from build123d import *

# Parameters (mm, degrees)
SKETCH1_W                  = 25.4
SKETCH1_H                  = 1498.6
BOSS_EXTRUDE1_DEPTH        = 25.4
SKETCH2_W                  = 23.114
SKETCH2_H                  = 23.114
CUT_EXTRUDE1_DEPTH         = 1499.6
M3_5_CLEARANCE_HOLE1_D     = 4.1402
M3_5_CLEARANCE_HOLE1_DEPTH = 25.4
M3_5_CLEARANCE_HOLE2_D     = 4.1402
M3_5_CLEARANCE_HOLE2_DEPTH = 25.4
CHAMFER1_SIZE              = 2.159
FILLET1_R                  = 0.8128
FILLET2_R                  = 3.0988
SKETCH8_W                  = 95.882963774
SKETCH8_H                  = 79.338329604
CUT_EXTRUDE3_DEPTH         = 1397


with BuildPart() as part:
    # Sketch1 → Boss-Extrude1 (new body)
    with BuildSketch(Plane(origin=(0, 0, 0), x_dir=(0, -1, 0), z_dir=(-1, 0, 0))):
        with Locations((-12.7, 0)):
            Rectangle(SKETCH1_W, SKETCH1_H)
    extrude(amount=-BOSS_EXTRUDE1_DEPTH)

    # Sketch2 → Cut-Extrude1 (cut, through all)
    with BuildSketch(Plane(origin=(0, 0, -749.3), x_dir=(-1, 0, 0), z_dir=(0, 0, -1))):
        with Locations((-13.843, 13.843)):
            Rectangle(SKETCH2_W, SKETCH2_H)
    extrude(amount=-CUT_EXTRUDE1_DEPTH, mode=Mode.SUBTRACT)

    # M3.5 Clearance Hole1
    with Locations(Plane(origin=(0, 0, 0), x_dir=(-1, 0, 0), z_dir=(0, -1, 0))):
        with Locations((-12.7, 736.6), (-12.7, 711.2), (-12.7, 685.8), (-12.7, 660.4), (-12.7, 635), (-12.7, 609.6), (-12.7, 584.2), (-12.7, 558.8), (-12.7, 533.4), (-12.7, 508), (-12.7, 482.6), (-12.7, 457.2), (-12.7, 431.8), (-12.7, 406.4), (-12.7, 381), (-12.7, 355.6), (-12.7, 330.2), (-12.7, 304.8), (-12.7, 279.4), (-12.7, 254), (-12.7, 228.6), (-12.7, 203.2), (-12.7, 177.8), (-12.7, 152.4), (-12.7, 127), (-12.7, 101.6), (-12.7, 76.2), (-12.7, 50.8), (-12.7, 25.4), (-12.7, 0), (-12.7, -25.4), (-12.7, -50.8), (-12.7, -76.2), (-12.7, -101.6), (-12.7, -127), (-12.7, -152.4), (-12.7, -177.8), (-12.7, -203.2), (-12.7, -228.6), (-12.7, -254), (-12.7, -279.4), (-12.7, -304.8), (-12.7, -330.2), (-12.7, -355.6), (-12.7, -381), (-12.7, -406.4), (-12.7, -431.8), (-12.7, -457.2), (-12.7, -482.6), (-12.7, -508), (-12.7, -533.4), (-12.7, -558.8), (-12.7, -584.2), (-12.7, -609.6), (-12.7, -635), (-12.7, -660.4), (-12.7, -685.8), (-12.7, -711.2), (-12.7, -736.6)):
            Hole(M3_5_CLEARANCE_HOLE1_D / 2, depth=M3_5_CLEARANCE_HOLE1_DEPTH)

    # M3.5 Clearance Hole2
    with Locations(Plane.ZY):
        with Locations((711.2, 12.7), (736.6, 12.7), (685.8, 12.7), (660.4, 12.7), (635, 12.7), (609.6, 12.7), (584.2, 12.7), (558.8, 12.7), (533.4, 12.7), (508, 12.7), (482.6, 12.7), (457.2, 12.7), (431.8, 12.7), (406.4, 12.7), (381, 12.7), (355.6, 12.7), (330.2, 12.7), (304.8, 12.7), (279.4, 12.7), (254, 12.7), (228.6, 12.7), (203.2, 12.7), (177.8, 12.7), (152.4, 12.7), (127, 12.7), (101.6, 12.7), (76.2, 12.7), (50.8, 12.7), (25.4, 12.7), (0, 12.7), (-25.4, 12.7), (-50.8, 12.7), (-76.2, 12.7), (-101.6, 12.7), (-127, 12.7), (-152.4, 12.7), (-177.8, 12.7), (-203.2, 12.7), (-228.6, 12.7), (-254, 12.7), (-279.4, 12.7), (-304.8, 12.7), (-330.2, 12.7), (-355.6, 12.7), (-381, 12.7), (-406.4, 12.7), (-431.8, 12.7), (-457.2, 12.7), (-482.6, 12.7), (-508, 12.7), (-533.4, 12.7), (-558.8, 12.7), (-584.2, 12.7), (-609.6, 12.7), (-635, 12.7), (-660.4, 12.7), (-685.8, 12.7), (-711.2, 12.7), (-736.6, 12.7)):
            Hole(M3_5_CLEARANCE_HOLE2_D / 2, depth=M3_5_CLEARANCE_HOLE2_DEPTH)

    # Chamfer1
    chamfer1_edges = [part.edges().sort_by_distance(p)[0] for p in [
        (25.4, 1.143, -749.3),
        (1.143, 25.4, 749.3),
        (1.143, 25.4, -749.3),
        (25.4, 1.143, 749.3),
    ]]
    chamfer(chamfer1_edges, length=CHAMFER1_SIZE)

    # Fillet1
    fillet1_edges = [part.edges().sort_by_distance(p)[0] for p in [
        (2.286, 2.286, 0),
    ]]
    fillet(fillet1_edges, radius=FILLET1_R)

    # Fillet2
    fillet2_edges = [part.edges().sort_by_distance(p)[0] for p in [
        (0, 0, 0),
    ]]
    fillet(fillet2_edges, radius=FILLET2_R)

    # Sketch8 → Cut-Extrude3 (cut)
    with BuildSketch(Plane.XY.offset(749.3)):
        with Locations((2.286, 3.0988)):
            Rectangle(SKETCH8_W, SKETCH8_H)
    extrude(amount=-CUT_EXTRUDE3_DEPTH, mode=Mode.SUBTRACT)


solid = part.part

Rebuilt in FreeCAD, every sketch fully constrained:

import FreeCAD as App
import Part
import Sketcher

V = App.Vector
Q = App.Units.Quantity


def edges_at(feature, points):
    """Names of the edges that pass closest to the given points."""
    edges = feature.Shape.Edges
    near = lambda p: min(range(len(edges)), key=lambda i: edges[i].distToShape(Part.Vertex(*p))[0])
    return sorted({f"Edge{near(p) + 1}" for p in points})

doc = App.newDocument("Part")
body = doc.addObject("PartDesign::Body", "Body")

sketch1 = doc.addObject("Sketcher::SketchObject", "Sketch")
body.addObject(sketch1)
sketch1.AttachmentSupport = (doc.YZ_Plane, [""])
sketch1.MapMode = "FlatFace"
sketch1.addGeometry([
    Part.LineSegment(V(25, 749, 0), V(25, -749, 0)),
    Part.LineSegment(V(25, -749, 0), V(0, -749, 0)),
    Part.LineSegment(V(0, -749, 0), V(0, 749, 0)),
    Part.LineSegment(V(0, 749, 0), V(25, 749, 0)),
], False)
sketch1.addConstraint([
    Sketcher.Constraint("Coincident", 0, 2, 1, 1),
    Sketcher.Constraint("Coincident", 1, 2, 2, 1),
    Sketcher.Constraint("Coincident", 2, 2, 3, 1),
    Sketcher.Constraint("Coincident", 3, 2, 0, 1),
    Sketcher.Constraint("Vertical", 0),
    Sketcher.Constraint("Horizontal", 1),
    Sketcher.Constraint("Vertical", 2),
    Sketcher.Constraint("Horizontal", 3),
    Sketcher.Constraint("Symmetric", 1, 2, 2, 2, -1, 1),
    Sketcher.Constraint("DistanceX", 1, 2, 1, 1, Q("1 in")),
    Sketcher.Constraint("DistanceY", 0, 2, 0, 1, Q("59 in")),
])
pad1 = doc.addObject("PartDesign::Pad", "Pad")
body.addObject(pad1)
pad1.Profile = sketch1
pad1.Length = Q("1 in")

sketch2 = doc.addObject("Sketcher::SketchObject", "Sketch001")
body.addObject(sketch2)
sketch2.AttachmentSupport = (doc.XY_Plane, [""])
sketch2.MapMode = "FlatFace"
sketch2.AttachmentOffset = App.Placement(V(0, 0, -29.5 * 25.4), App.Rotation())
sketch2.addGeometry([
    Part.LineSegment(V(25, 25, 0), V(25, 2, 0)),
    Part.LineSegment(V(25, 2, 0), V(2, 2, 0)),
    Part.LineSegment(V(2, 2, 0), V(2, 25, 0)),
    Part.LineSegment(V(2, 25, 0), V(25, 25, 0)),
], False)
sketch2.addConstraint([
    Sketcher.Constraint("Coincident", 0, 2, 1, 1),
    Sketcher.Constraint("Coincident", 1, 2, 2, 1),
    Sketcher.Constraint("Coincident", 2, 2, 3, 1),
    Sketcher.Constraint("Coincident", 3, 2, 0, 1),
    Sketcher.Constraint("Vertical", 0),
    Sketcher.Constraint("Horizontal", 1),
    Sketcher.Constraint("Vertical", 2),
    Sketcher.Constraint("Horizontal", 3),
    Sketcher.Constraint("Equal", 3, 0),
    Sketcher.Constraint("DistanceX", -1, 1, 0, 2, Q("1 in")),
    Sketcher.Constraint("DistanceY", -1, 1, 2, 2, Q("1 in")),
    Sketcher.Constraint("DistanceX", 1, 2, 1, 1, Q("0.91 in")),
])
pocket1 = doc.addObject("PartDesign::Pocket", "Pocket")
body.addObject(pocket1)
pocket1.Profile = sketch2
pocket1.Type = "ThroughAll"
pocket1.Reversed = True

sketch3 = doc.addObject("Sketcher::SketchObject", "Sketch002")
body.addObject(sketch3)
sketch3.AttachmentSupport = (doc.XZ_Plane, [""])
sketch3.MapMode = "FlatFace"
sketch3.addGeometry([
    Part.Circle(V(12.7, -736.6, 0), V(0, 0, 1), 2.1),
    Part.Circle(V(12.7, -711.2, 0), V(0, 0, 1), 2.1),
    Part.Circle(V(12.7, -685.8, 0), V(0, 0, 1), 2.1),
    Part.Circle(V(12.7, -660.4, 0), V(0, 0, 1), 2.1),
    Part.Circle(V(12.7, -635, 0), V(0, 0, 1), 2.1),
    Part.Circle(V(12.7, -609.6, 0), V(0, 0, 1), 2.1),
    Part.Circle(V(12.7, -584.2, 0), V(0, 0, 1), 2.1),
    Part.Circle(V(12.7, -558.8, 0), V(0, 0, 1), 2.1),
    Part.Circle(V(12.7, -533.4, 0), V(0, 0, 1), 2.1),
    Part.Circle(V(12.7, -508, 0), V(0, 0, 1), 2.1),
    Part.Circle(V(12.7, -482.6, 0), V(0, 0, 1), 2.1),
    Part.Circle(V(12.7, -457.2, 0), V(0, 0, 1), 2.1),
    Part.Circle(V(12.7, -431.8, 0), V(0, 0, 1), 2.1),
    Part.Circle(V(12.7, -406.4, 0), V(0, 0, 1), 2.1),
    Part.Circle(V(12.7, -381, 0), V(0, 0, 1), 2.1),
    Part.Circle(V(12.7, -355.6, 0), V(0, 0, 1), 2.1),
    Part.Circle(V(12.7, -330.2, 0), V(0, 0, 1), 2.1),
    Part.Circle(V(12.7, -304.8, 0), V(0, 0, 1), 2.1),
    Part.Circle(V(12.7, -279.4, 0), V(0, 0, 1), 2.1),
    Part.Circle(V(12.7, -254, 0), V(0, 0, 1), 2.1),
    Part.Circle(V(12.7, -228.6, 0), V(0, 0, 1), 2.1),
    Part.Circle(V(12.7, -203.2, 0), V(0, 0, 1), 2.1),
    Part.Circle(V(12.7, -177.8, 0), V(0, 0, 1), 2.1),
    Part.Circle(V(12.7, -152.4, 0), V(0, 0, 1), 2.1),
    Part.Circle(V(12.7, -127, 0), V(0, 0, 1), 2.1),
    Part.Circle(V(12.7, -101.6, 0), V(0, 0, 1), 2.1),
    Part.Circle(V(12.7, -76.2, 0), V(0, 0, 1), 2.1),
    Part.Circle(V(12.7, -50.8, 0), V(0, 0, 1), 2.1),
    Part.Circle(V(12.7, -25.4, 0), V(0, 0, 1), 2.1),
    Part.Circle(V(12.7, 0, 0), V(0, 0, 1), 2.1),
    Part.Circle(V(12.7, 25.4, 0), V(0, 0, 1), 2.1),
    Part.Circle(V(12.7, 50.8, 0), V(0, 0, 1), 2.1),
    Part.Circle(V(12.7, 76.2, 0), V(0, 0, 1), 2.1),
    Part.Circle(V(12.7, 101.6, 0), V(0, 0, 1), 2.1),
    Part.Circle(V(12.7, 127, 0), V(0, 0, 1), 2.1),
    Part.Circle(V(12.7, 152.4, 0), V(0, 0, 1), 2.1),
    Part.Circle(V(12.7, 177.8, 0), V(0, 0, 1), 2.1),
    Part.Circle(V(12.7, 203.2, 0), V(0, 0, 1), 2.1),
    Part.Circle(V(12.7, 228.6, 0), V(0, 0, 1), 2.1),
    Part.Circle(V(12.7, 254, 0), V(0, 0, 1), 2.1),
    Part.Circle(V(12.7, 279.4, 0), V(0, 0, 1), 2.1),
    Part.Circle(V(12.7, 304.8, 0), V(0, 0, 1), 2.1),
    Part.Circle(V(12.7, 330.2, 0), V(0, 0, 1), 2.1),
    Part.Circle(V(12.7, 355.6, 0), V(0, 0, 1), 2.1),
    Part.Circle(V(12.7, 381, 0), V(0, 0, 1), 2.1),
    Part.Circle(V(12.7, 406.4, 0), V(0, 0, 1), 2.1),
    Part.Circle(V(12.7, 431.8, 0), V(0, 0, 1), 2.1),
    Part.Circle(V(12.7, 457.2, 0), V(0, 0, 1), 2.1),
    Part.Circle(V(12.7, 482.6, 0), V(0, 0, 1), 2.1),
    Part.Circle(V(12.7, 508, 0), V(0, 0, 1), 2.1),
    Part.Circle(V(12.7, 533.4, 0), V(0, 0, 1), 2.1),
    Part.Circle(V(12.7, 558.8, 0), V(0, 0, 1), 2.1),
    Part.Circle(V(12.7, 584.2, 0), V(0, 0, 1), 2.1),
    Part.Circle(V(12.7, 609.6, 0), V(0, 0, 1), 2.1),
    Part.Circle(V(12.7, 635, 0), V(0, 0, 1), 2.1),
    Part.Circle(V(12.7, 660.4, 0), V(0, 0, 1), 2.1),
    Part.Circle(V(12.7, 685.8, 0), V(0, 0, 1), 2.1),
    Part.Circle(V(12.7, 711.2, 0), V(0, 0, 1), 2.1),
    Part.Circle(V(12.7, 736.6, 0), V(0, 0, 1), 2.1),
], False)
sketch3.addConstraint([
    Sketcher.Constraint("Equal", 0, 1),
    Sketcher.Constraint("Equal", 1, 2),
    Sketcher.Constraint("Equal", 2, 3),
    Sketcher.Constraint("Equal", 3, 4),
    Sketcher.Constraint("Equal", 4, 5),
    Sketcher.Constraint("Equal", 5, 6),
    Sketcher.Constraint("Equal", 6, 7),
    Sketcher.Constraint("Equal", 7, 8),
    Sketcher.Constraint("Equal", 8, 9),
    Sketcher.Constraint("Equal", 9, 10),
    Sketcher.Constraint("Equal", 10, 11),
    Sketcher.Constraint("Equal", 11, 12),
    Sketcher.Constraint("Equal", 12, 13),
    Sketcher.Constraint("Equal", 13, 14),
    Sketcher.Constraint("Equal", 14, 15),
    Sketcher.Constraint("Equal", 15, 16),
    Sketcher.Constraint("Equal", 16, 17),
    Sketcher.Constraint("Equal", 17, 18),
    Sketcher.Constraint("Equal", 18, 19),
    Sketcher.Constraint("Equal", 19, 20),
    Sketcher.Constraint("Equal", 20, 21),
    Sketcher.Constraint("Equal", 21, 22),
    Sketcher.Constraint("Equal", 22, 23),
    Sketcher.Constraint("Equal", 23, 24),
    Sketcher.Constraint("Equal", 24, 25),
    Sketcher.Constraint("Equal", 25, 26),
    Sketcher.Constraint("Equal", 26, 27),
    Sketcher.Constraint("Equal", 27, 28),
    Sketcher.Constraint("Equal", 28, 29),
    Sketcher.Constraint("Equal", 29, 30),
    Sketcher.Constraint("Equal", 30, 31),
    Sketcher.Constraint("Equal", 31, 32),
    Sketcher.Constraint("Equal", 32, 33),
    Sketcher.Constraint("Equal", 33, 34),
    Sketcher.Constraint("Equal", 34, 35),
    Sketcher.Constraint("Equal", 35, 36),
    Sketcher.Constraint("Equal", 36, 37),
    Sketcher.Constraint("Equal", 37, 38),
    Sketcher.Constraint("Equal", 38, 39),
    Sketcher.Constraint("Equal", 39, 40),
    Sketcher.Constraint("Equal", 40, 41),
    Sketcher.Constraint("Equal", 41, 42),
    Sketcher.Constraint("Equal", 42, 43),
    Sketcher.Constraint("Equal", 43, 44),
    Sketcher.Constraint("Equal", 44, 45),
    Sketcher.Constraint("Equal", 45, 46),
    Sketcher.Constraint("Equal", 46, 47),
    Sketcher.Constraint("Equal", 47, 48),
    Sketcher.Constraint("Equal", 48, 49),
    Sketcher.Constraint("Equal", 49, 50),
    Sketcher.Constraint("Equal", 50, 51),
    Sketcher.Constraint("Equal", 51, 52),
    Sketcher.Constraint("Equal", 52, 53),
    Sketcher.Constraint("Equal", 53, 54),
    Sketcher.Constraint("Equal", 54, 55),
    Sketcher.Constraint("Equal", 55, 56),
    Sketcher.Constraint("Equal", 56, 57),
    Sketcher.Constraint("Equal", 57, 58),
    Sketcher.Constraint("Symmetric", 28, 3, 30, 3, -1),
    Sketcher.Constraint("Symmetric", 27, 3, 31, 3, -1),
    Sketcher.Constraint("Symmetric", 26, 3, 32, 3, -1),
    Sketcher.Constraint("Symmetric", 25, 3, 33, 3, -1),
    Sketcher.Constraint("Symmetric", 24, 3, 34, 3, -1),
    Sketcher.Constraint("Symmetric", 23, 3, 35, 3, -1),
    Sketcher.Constraint("Symmetric", 22, 3, 36, 3, -1),
    Sketcher.Constraint("Symmetric", 21, 3, 37, 3, -1),
    Sketcher.Constraint("Symmetric", 20, 3, 38, 3, -1),
    Sketcher.Constraint("Symmetric", 19, 3, 39, 3, -1),
    Sketcher.Constraint("Symmetric", 18, 3, 40, 3, -1),
    Sketcher.Constraint("Symmetric", 17, 3, 41, 3, -1),
    Sketcher.Constraint("Symmetric", 16, 3, 42, 3, -1),
    Sketcher.Constraint("Symmetric", 15, 3, 43, 3, -1),
    Sketcher.Constraint("Symmetric", 14, 3, 44, 3, -1),
    Sketcher.Constraint("Symmetric", 13, 3, 45, 3, -1),
    Sketcher.Constraint("Symmetric", 12, 3, 46, 3, -1),
    Sketcher.Constraint("Symmetric", 11, 3, 47, 3, -1),
    Sketcher.Constraint("Symmetric", 10, 3, 48, 3, -1),
    Sketcher.Constraint("Symmetric", 9, 3, 49, 3, -1),
    Sketcher.Constraint("Symmetric", 8, 3, 50, 3, -1),
    Sketcher.Constraint("Symmetric", 7, 3, 51, 3, -1),
    Sketcher.Constraint("Symmetric", 6, 3, 52, 3, -1),
    Sketcher.Constraint("Symmetric", 5, 3, 53, 3, -1),
    Sketcher.Constraint("Symmetric", 4, 3, 54, 3, -1),
    Sketcher.Constraint("Symmetric", 3, 3, 55, 3, -1),
    Sketcher.Constraint("Symmetric", 2, 3, 56, 3, -1),
    Sketcher.Constraint("Symmetric", 1, 3, 57, 3, -1),
    Sketcher.Constraint("Symmetric", 0, 3, 58, 3, -1),
    Sketcher.Constraint("PointOnObject", 29, 3, -1),
    Sketcher.Constraint("Vertical", 0, 3, 1, 3),
    Sketcher.Constraint("Vertical", 1, 3, 2, 3),
    Sketcher.Constraint("Vertical", 2, 3, 3, 3),
    Sketcher.Constraint("Vertical", 3, 3, 4, 3),
    Sketcher.Constraint("Vertical", 4, 3, 5, 3),
    Sketcher.Constraint("Vertical", 5, 3, 6, 3),
    Sketcher.Constraint("Vertical", 6, 3, 7, 3),
    Sketcher.Constraint("Vertical", 7, 3, 8, 3),
    Sketcher.Constraint("Vertical", 8, 3, 9, 3),
    Sketcher.Constraint("Vertical", 9, 3, 10, 3),
    Sketcher.Constraint("Vertical", 10, 3, 11, 3),
    Sketcher.Constraint("Vertical", 11, 3, 12, 3),
    Sketcher.Constraint("Vertical", 12, 3, 13, 3),
    Sketcher.Constraint("Vertical", 13, 3, 14, 3),
    Sketcher.Constraint("Vertical", 14, 3, 15, 3),
    Sketcher.Constraint("Vertical", 15, 3, 16, 3),
    Sketcher.Constraint("Vertical", 16, 3, 17, 3),
    Sketcher.Constraint("Vertical", 17, 3, 18, 3),
    Sketcher.Constraint("Vertical", 18, 3, 19, 3),
    Sketcher.Constraint("Vertical", 19, 3, 20, 3),
    Sketcher.Constraint("Vertical", 20, 3, 21, 3),
    Sketcher.Constraint("Vertical", 21, 3, 22, 3),
    Sketcher.Constraint("Vertical", 22, 3, 23, 3),
    Sketcher.Constraint("Vertical", 23, 3, 24, 3),
    Sketcher.Constraint("Vertical", 24, 3, 25, 3),
    Sketcher.Constraint("Vertical", 25, 3, 26, 3),
    Sketcher.Constraint("Vertical", 26, 3, 27, 3),
    Sketcher.Constraint("Vertical", 27, 3, 28, 3),
    Sketcher.Constraint("Vertical", 28, 3, 29, 3),
    Sketcher.Constraint("Diameter", 0, Q("0.163 in")),
    Sketcher.Constraint("DistanceY", 0, 3, -1, 1, Q("29 in")),
    Sketcher.Constraint("DistanceY", 1, 3, -1, 1, Q("28 in")),
    Sketcher.Constraint("DistanceY", 2, 3, -1, 1, Q("27 in")),
    Sketcher.Constraint("DistanceY", 3, 3, -1, 1, Q("26 in")),
    Sketcher.Constraint("DistanceY", 4, 3, -1, 1, Q("25 in")),
    Sketcher.Constraint("DistanceY", 5, 3, -1, 1, Q("24 in")),
    Sketcher.Constraint("DistanceY", 6, 3, -1, 1, Q("23 in")),
    Sketcher.Constraint("DistanceY", 7, 3, -1, 1, Q("22 in")),
    Sketcher.Constraint("DistanceY", 8, 3, -1, 1, Q("21 in")),
    Sketcher.Constraint("DistanceY", 9, 3, -1, 1, Q("20 in")),
    Sketcher.Constraint("DistanceY", 10, 3, -1, 1, Q("19 in")),
    Sketcher.Constraint("DistanceY", 11, 3, -1, 1, Q("18 in")),
    Sketcher.Constraint("DistanceY", 12, 3, -1, 1, Q("17 in")),
    Sketcher.Constraint("DistanceY", 13, 3, -1, 1, Q("16 in")),
    Sketcher.Constraint("DistanceY", 14, 3, -1, 1, Q("15 in")),
    Sketcher.Constraint("DistanceY", 15, 3, -1, 1, Q("14 in")),
    Sketcher.Constraint("DistanceY", 16, 3, -1, 1, Q("13 in")),
    Sketcher.Constraint("DistanceY", 17, 3, -1, 1, Q("12 in")),
    Sketcher.Constraint("DistanceY", 18, 3, -1, 1, Q("11 in")),
    Sketcher.Constraint("DistanceY", 19, 3, -1, 1, Q("10 in")),
    Sketcher.Constraint("DistanceY", 20, 3, -1, 1, Q("9 in")),
    Sketcher.Constraint("DistanceY", 21, 3, -1, 1, Q("8 in")),
    Sketcher.Constraint("DistanceY", 22, 3, -1, 1, Q("7 in")),
    Sketcher.Constraint("DistanceY", 23, 3, -1, 1, Q("6 in")),
    Sketcher.Constraint("DistanceY", 24, 3, -1, 1, Q("5 in")),
    Sketcher.Constraint("DistanceY", 25, 3, -1, 1, Q("4 in")),
    Sketcher.Constraint("DistanceY", 26, 3, -1, 1, Q("3 in")),
    Sketcher.Constraint("DistanceY", 27, 3, -1, 1, Q("2 in")),
    Sketcher.Constraint("DistanceY", 28, 3, -1, 1, Q("1 in")),
    Sketcher.Constraint("DistanceX", -1, 1, 0, 3, Q("0.5 in")),
])
doc.recompute()
hole = doc.addObject("PartDesign::Hole", "Hole")
body.addObject(hole)
hole.Profile = sketch3
hole.ThreadType = "None"
hole.Diameter = Q("0.163 in")
hole.DepthType = "Dimension"
hole.Depth = Q("1 in")
hole.DrillPoint = "Flat"

sketch4 = doc.addObject("Sketcher::SketchObject", "Sketch003")
body.addObject(sketch4)
sketch4.AttachmentSupport = (doc.YZ_Plane, [""])
sketch4.MapMode = "FlatFace"
sketch4.addGeometry([
    Part.Circle(V(12.7, 711.2, 0), V(0, 0, 1), 2.1),
    Part.Circle(V(12.7, 736.6, 0), V(0, 0, 1), 2.1),
    Part.Circle(V(12.7, 685.8, 0), V(0, 0, 1), 2.1),
    Part.Circle(V(12.7, 660.4, 0), V(0, 0, 1), 2.1),
    Part.Circle(V(12.7, 635, 0), V(0, 0, 1), 2.1),
    Part.Circle(V(12.7, 609.6, 0), V(0, 0, 1), 2.1),
    Part.Circle(V(12.7, 584.2, 0), V(0, 0, 1), 2.1),
    Part.Circle(V(12.7, 558.8, 0), V(0, 0, 1), 2.1),
    Part.Circle(V(12.7, 533.4, 0), V(0, 0, 1), 2.1),
    Part.Circle(V(12.7, 508, 0), V(0, 0, 1), 2.1),
    Part.Circle(V(12.7, 482.6, 0), V(0, 0, 1), 2.1),
    Part.Circle(V(12.7, 457.2, 0), V(0, 0, 1), 2.1),
    Part.Circle(V(12.7, 431.8, 0), V(0, 0, 1), 2.1),
    Part.Circle(V(12.7, 406.4, 0), V(0, 0, 1), 2.1),
    Part.Circle(V(12.7, 381, 0), V(0, 0, 1), 2.1),
    Part.Circle(V(12.7, 355.6, 0), V(0, 0, 1), 2.1),
    Part.Circle(V(12.7, 330.2, 0), V(0, 0, 1), 2.1),
    Part.Circle(V(12.7, 304.8, 0), V(0, 0, 1), 2.1),
    Part.Circle(V(12.7, 279.4, 0), V(0, 0, 1), 2.1),
    Part.Circle(V(12.7, 254, 0), V(0, 0, 1), 2.1),
    Part.Circle(V(12.7, 228.6, 0), V(0, 0, 1), 2.1),
    Part.Circle(V(12.7, 203.2, 0), V(0, 0, 1), 2.1),
    Part.Circle(V(12.7, 177.8, 0), V(0, 0, 1), 2.1),
    Part.Circle(V(12.7, 152.4, 0), V(0, 0, 1), 2.1),
    Part.Circle(V(12.7, 127, 0), V(0, 0, 1), 2.1),
    Part.Circle(V(12.7, 101.6, 0), V(0, 0, 1), 2.1),
    Part.Circle(V(12.7, 76.2, 0), V(0, 0, 1), 2.1),
    Part.Circle(V(12.7, 50.8, 0), V(0, 0, 1), 2.1),
    Part.Circle(V(12.7, 25.4, 0), V(0, 0, 1), 2.1),
    Part.Circle(V(12.7, 0, 0), V(0, 0, 1), 2.1),
    Part.Circle(V(12.7, -25.4, 0), V(0, 0, 1), 2.1),
    Part.Circle(V(12.7, -50.8, 0), V(0, 0, 1), 2.1),
    Part.Circle(V(12.7, -76.2, 0), V(0, 0, 1), 2.1),
    Part.Circle(V(12.7, -101.6, 0), V(0, 0, 1), 2.1),
    Part.Circle(V(12.7, -127, 0), V(0, 0, 1), 2.1),
    Part.Circle(V(12.7, -152.4, 0), V(0, 0, 1), 2.1),
    Part.Circle(V(12.7, -177.8, 0), V(0, 0, 1), 2.1),
    Part.Circle(V(12.7, -203.2, 0), V(0, 0, 1), 2.1),
    Part.Circle(V(12.7, -228.6, 0), V(0, 0, 1), 2.1),
    Part.Circle(V(12.7, -254, 0), V(0, 0, 1), 2.1),
    Part.Circle(V(12.7, -279.4, 0), V(0, 0, 1), 2.1),
    Part.Circle(V(12.7, -304.8, 0), V(0, 0, 1), 2.1),
    Part.Circle(V(12.7, -330.2, 0), V(0, 0, 1), 2.1),
    Part.Circle(V(12.7, -355.6, 0), V(0, 0, 1), 2.1),
    Part.Circle(V(12.7, -381, 0), V(0, 0, 1), 2.1),
    Part.Circle(V(12.7, -406.4, 0), V(0, 0, 1), 2.1),
    Part.Circle(V(12.7, -431.8, 0), V(0, 0, 1), 2.1),
    Part.Circle(V(12.7, -457.2, 0), V(0, 0, 1), 2.1),
    Part.Circle(V(12.7, -482.6, 0), V(0, 0, 1), 2.1),
    Part.Circle(V(12.7, -508, 0), V(0, 0, 1), 2.1),
    Part.Circle(V(12.7, -533.4, 0), V(0, 0, 1), 2.1),
    Part.Circle(V(12.7, -558.8, 0), V(0, 0, 1), 2.1),
    Part.Circle(V(12.7, -584.2, 0), V(0, 0, 1), 2.1),
    Part.Circle(V(12.7, -609.6, 0), V(0, 0, 1), 2.1),
    Part.Circle(V(12.7, -635, 0), V(0, 0, 1), 2.1),
    Part.Circle(V(12.7, -660.4, 0), V(0, 0, 1), 2.1),
    Part.Circle(V(12.7, -685.8, 0), V(0, 0, 1), 2.1),
    Part.Circle(V(12.7, -711.2, 0), V(0, 0, 1), 2.1),
    Part.Circle(V(12.7, -736.6, 0), V(0, 0, 1), 2.1),
], False)
sketch4.addConstraint([
    Sketcher.Constraint("Equal", 0, 1),
    Sketcher.Constraint("Equal", 1, 2),
    Sketcher.Constraint("Equal", 2, 3),
    Sketcher.Constraint("Equal", 3, 4),
    Sketcher.Constraint("Equal", 4, 5),
    Sketcher.Constraint("Equal", 5, 6),
    Sketcher.Constraint("Equal", 6, 7),
    Sketcher.Constraint("Equal", 7, 8),
    Sketcher.Constraint("Equal", 8, 9),
    Sketcher.Constraint("Equal", 9, 10),
    Sketcher.Constraint("Equal", 10, 11),
    Sketcher.Constraint("Equal", 11, 12),
    Sketcher.Constraint("Equal", 12, 13),
    Sketcher.Constraint("Equal", 13, 14),
    Sketcher.Constraint("Equal", 14, 15),
    Sketcher.Constraint("Equal", 15, 16),
    Sketcher.Constraint("Equal", 16, 17),
    Sketcher.Constraint("Equal", 17, 18),
    Sketcher.Constraint("Equal", 18, 19),
    Sketcher.Constraint("Equal", 19, 20),
    Sketcher.Constraint("Equal", 20, 21),
    Sketcher.Constraint("Equal", 21, 22),
    Sketcher.Constraint("Equal", 22, 23),
    Sketcher.Constraint("Equal", 23, 24),
    Sketcher.Constraint("Equal", 24, 25),
    Sketcher.Constraint("Equal", 25, 26),
    Sketcher.Constraint("Equal", 26, 27),
    Sketcher.Constraint("Equal", 27, 28),
    Sketcher.Constraint("Equal", 28, 29),
    Sketcher.Constraint("Equal", 29, 30),
    Sketcher.Constraint("Equal", 30, 31),
    Sketcher.Constraint("Equal", 31, 32),
    Sketcher.Constraint("Equal", 32, 33),
    Sketcher.Constraint("Equal", 33, 34),
    Sketcher.Constraint("Equal", 34, 35),
    Sketcher.Constraint("Equal", 35, 36),
    Sketcher.Constraint("Equal", 36, 37),
    Sketcher.Constraint("Equal", 37, 38),
    Sketcher.Constraint("Equal", 38, 39),
    Sketcher.Constraint("Equal", 39, 40),
    Sketcher.Constraint("Equal", 40, 41),
    Sketcher.Constraint("Equal", 41, 42),
    Sketcher.Constraint("Equal", 42, 43),
    Sketcher.Constraint("Equal", 43, 44),
    Sketcher.Constraint("Equal", 44, 45),
    Sketcher.Constraint("Equal", 45, 46),
    Sketcher.Constraint("Equal", 46, 47),
    Sketcher.Constraint("Equal", 47, 48),
    Sketcher.Constraint("Equal", 48, 49),
    Sketcher.Constraint("Equal", 49, 50),
    Sketcher.Constraint("Equal", 50, 51),
    Sketcher.Constraint("Equal", 51, 52),
    Sketcher.Constraint("Equal", 52, 53),
    Sketcher.Constraint("Equal", 53, 54),
    Sketcher.Constraint("Equal", 54, 55),
    Sketcher.Constraint("Equal", 55, 56),
    Sketcher.Constraint("Equal", 56, 57),
    Sketcher.Constraint("Equal", 57, 58),
    Sketcher.Constraint("Symmetric", 28, 3, 30, 3, -1),
    Sketcher.Constraint("Symmetric", 27, 3, 31, 3, -1),
    Sketcher.Constraint("Symmetric", 26, 3, 32, 3, -1),
    Sketcher.Constraint("Symmetric", 25, 3, 33, 3, -1),
    Sketcher.Constraint("Symmetric", 24, 3, 34, 3, -1),
    Sketcher.Constraint("Symmetric", 23, 3, 35, 3, -1),
    Sketcher.Constraint("Symmetric", 22, 3, 36, 3, -1),
    Sketcher.Constraint("Symmetric", 21, 3, 37, 3, -1),
    Sketcher.Constraint("Symmetric", 20, 3, 38, 3, -1),
    Sketcher.Constraint("Symmetric", 19, 3, 39, 3, -1),
    Sketcher.Constraint("Symmetric", 18, 3, 40, 3, -1),
    Sketcher.Constraint("Symmetric", 17, 3, 41, 3, -1),
    Sketcher.Constraint("Symmetric", 16, 3, 42, 3, -1),
    Sketcher.Constraint("Symmetric", 15, 3, 43, 3, -1),
    Sketcher.Constraint("Symmetric", 14, 3, 44, 3, -1),
    Sketcher.Constraint("Symmetric", 13, 3, 45, 3, -1),
    Sketcher.Constraint("Symmetric", 12, 3, 46, 3, -1),
    Sketcher.Constraint("Symmetric", 11, 3, 47, 3, -1),
    Sketcher.Constraint("Symmetric", 10, 3, 48, 3, -1),
    Sketcher.Constraint("Symmetric", 9, 3, 49, 3, -1),
    Sketcher.Constraint("Symmetric", 8, 3, 50, 3, -1),
    Sketcher.Constraint("Symmetric", 7, 3, 51, 3, -1),
    Sketcher.Constraint("Symmetric", 6, 3, 52, 3, -1),
    Sketcher.Constraint("Symmetric", 5, 3, 53, 3, -1),
    Sketcher.Constraint("Symmetric", 4, 3, 54, 3, -1),
    Sketcher.Constraint("Symmetric", 3, 3, 55, 3, -1),
    Sketcher.Constraint("Symmetric", 2, 3, 56, 3, -1),
    Sketcher.Constraint("Symmetric", 0, 3, 57, 3, -1),
    Sketcher.Constraint("Symmetric", 1, 3, 58, 3, -1),
    Sketcher.Constraint("PointOnObject", 29, 3, -1),
    Sketcher.Constraint("Vertical", 0, 3, 1, 3),
    Sketcher.Constraint("Vertical", 1, 3, 2, 3),
    Sketcher.Constraint("Vertical", 2, 3, 3, 3),
    Sketcher.Constraint("Vertical", 3, 3, 4, 3),
    Sketcher.Constraint("Vertical", 4, 3, 5, 3),
    Sketcher.Constraint("Vertical", 5, 3, 6, 3),
    Sketcher.Constraint("Vertical", 6, 3, 7, 3),
    Sketcher.Constraint("Vertical", 7, 3, 8, 3),
    Sketcher.Constraint("Vertical", 8, 3, 9, 3),
    Sketcher.Constraint("Vertical", 9, 3, 10, 3),
    Sketcher.Constraint("Vertical", 10, 3, 11, 3),
    Sketcher.Constraint("Vertical", 11, 3, 12, 3),
    Sketcher.Constraint("Vertical", 12, 3, 13, 3),
    Sketcher.Constraint("Vertical", 13, 3, 14, 3),
    Sketcher.Constraint("Vertical", 14, 3, 15, 3),
    Sketcher.Constraint("Vertical", 15, 3, 16, 3),
    Sketcher.Constraint("Vertical", 16, 3, 17, 3),
    Sketcher.Constraint("Vertical", 17, 3, 18, 3),
    Sketcher.Constraint("Vertical", 18, 3, 19, 3),
    Sketcher.Constraint("Vertical", 19, 3, 20, 3),
    Sketcher.Constraint("Vertical", 20, 3, 21, 3),
    Sketcher.Constraint("Vertical", 21, 3, 22, 3),
    Sketcher.Constraint("Vertical", 22, 3, 23, 3),
    Sketcher.Constraint("Vertical", 23, 3, 24, 3),
    Sketcher.Constraint("Vertical", 24, 3, 25, 3),
    Sketcher.Constraint("Vertical", 25, 3, 26, 3),
    Sketcher.Constraint("Vertical", 26, 3, 27, 3),
    Sketcher.Constraint("Vertical", 27, 3, 28, 3),
    Sketcher.Constraint("Vertical", 28, 3, 29, 3),
    Sketcher.Constraint("Diameter", 0, Q("0.163 in")),
    Sketcher.Constraint("DistanceY", -1, 1, 0, 3, Q("28 in")),
    Sketcher.Constraint("DistanceY", -1, 1, 1, 3, Q("29 in")),
    Sketcher.Constraint("DistanceY", -1, 1, 2, 3, Q("27 in")),
    Sketcher.Constraint("DistanceY", -1, 1, 3, 3, Q("26 in")),
    Sketcher.Constraint("DistanceY", -1, 1, 4, 3, Q("25 in")),
    Sketcher.Constraint("DistanceY", -1, 1, 5, 3, Q("24 in")),
    Sketcher.Constraint("DistanceY", -1, 1, 6, 3, Q("23 in")),
    Sketcher.Constraint("DistanceY", -1, 1, 7, 3, Q("22 in")),
    Sketcher.Constraint("DistanceY", -1, 1, 8, 3, Q("21 in")),
    Sketcher.Constraint("DistanceY", -1, 1, 9, 3, Q("20 in")),
    Sketcher.Constraint("DistanceY", -1, 1, 10, 3, Q("19 in")),
    Sketcher.Constraint("DistanceY", -1, 1, 11, 3, Q("18 in")),
    Sketcher.Constraint("DistanceY", -1, 1, 12, 3, Q("17 in")),
    Sketcher.Constraint("DistanceY", -1, 1, 13, 3, Q("16 in")),
    Sketcher.Constraint("DistanceY", -1, 1, 14, 3, Q("15 in")),
    Sketcher.Constraint("DistanceY", -1, 1, 15, 3, Q("14 in")),
    Sketcher.Constraint("DistanceY", -1, 1, 16, 3, Q("13 in")),
    Sketcher.Constraint("DistanceY", -1, 1, 17, 3, Q("12 in")),
    Sketcher.Constraint("DistanceY", -1, 1, 18, 3, Q("11 in")),
    Sketcher.Constraint("DistanceY", -1, 1, 19, 3, Q("10 in")),
    Sketcher.Constraint("DistanceY", -1, 1, 20, 3, Q("9 in")),
    Sketcher.Constraint("DistanceY", -1, 1, 21, 3, Q("8 in")),
    Sketcher.Constraint("DistanceY", -1, 1, 22, 3, Q("7 in")),
    Sketcher.Constraint("DistanceY", -1, 1, 23, 3, Q("6 in")),
    Sketcher.Constraint("DistanceY", -1, 1, 24, 3, Q("5 in")),
    Sketcher.Constraint("DistanceY", -1, 1, 25, 3, Q("4 in")),
    Sketcher.Constraint("DistanceY", -1, 1, 26, 3, Q("3 in")),
    Sketcher.Constraint("DistanceY", -1, 1, 27, 3, Q("2 in")),
    Sketcher.Constraint("DistanceY", -1, 1, 28, 3, Q("1 in")),
    Sketcher.Constraint("DistanceX", -1, 1, 0, 3, Q("0.5 in")),
])
doc.recompute()
hole2 = doc.addObject("PartDesign::Hole", "Hole001")
body.addObject(hole2)
hole2.Profile = sketch4
hole2.ThreadType = "None"
hole2.Diameter = Q("0.163 in")
hole2.DepthType = "Dimension"
hole2.Depth = Q("1 in")
hole2.DrillPoint = "Flat"
hole2.Reversed = True
doc.recompute()

chamfer = doc.addObject("PartDesign::Chamfer", "Chamfer")
body.addObject(chamfer)
chamfer.Base = (hole2, edges_at(hole2, [
    (25.4, 1.143, -749.3),
    (1.143, 25.4, 749.3),
    (1.143, 25.4, -749.3),
    (25.4, 1.143, 749.3),
]))
chamfer.Size = Q("0.085 in")
doc.recompute()

fillet = doc.addObject("PartDesign::Fillet", "Fillet")
body.addObject(fillet)
fillet.Base = (chamfer, edges_at(chamfer, [(2.286, 2.286, 0)]))
fillet.Radius = Q("0.032 in")
doc.recompute()

fillet2 = doc.addObject("PartDesign::Fillet", "Fillet001")
body.addObject(fillet2)
fillet2.Base = (fillet, edges_at(fillet, [(0, 0, 0)]))
fillet2.Radius = Q("0.122 in")

sketch5 = doc.addObject("Sketcher::SketchObject", "Sketch004")
body.addObject(sketch5)
sketch5.AttachmentSupport = (doc.XY_Plane, [""])
sketch5.MapMode = "FlatFace"
sketch5.AttachmentOffset = App.Placement(V(0, 0, 29.5 * 25.4), App.Rotation())
sketch5.addGeometry([
    Part.LineSegment(V(-46, 43, 0), V(-46, -37, 0)),
    Part.LineSegment(V(-46, -37, 0), V(50, -37, 0)),
    Part.LineSegment(V(50, -37, 0), V(50, 43, 0)),
    Part.LineSegment(V(50, 43, 0), V(-46, 43, 0)),
], False)
sketch5.addConstraint([
    Sketcher.Constraint("Coincident", 0, 2, 1, 1),
    Sketcher.Constraint("Coincident", 1, 2, 2, 1),
    Sketcher.Constraint("Coincident", 2, 2, 3, 1),
    Sketcher.Constraint("Coincident", 3, 2, 0, 1),
    Sketcher.Constraint("Vertical", 0),
    Sketcher.Constraint("Horizontal", 1),
    Sketcher.Constraint("Vertical", 2),
    Sketcher.Constraint("Horizontal", 3),
    Sketcher.Constraint("DistanceY", 0, 2, 0, 1, Q("79.33833 mm")),
    Sketcher.Constraint("DistanceX", 1, 1, 1, 2, Q("95.882964 mm")),
    Sketcher.Constraint("DistanceX", 0, 2, -1, 1, Q("45.655482 mm")),
    Sketcher.Constraint("DistanceY", 0, 2, -1, 1, Q("36.570365 mm")),
])
pocket2 = doc.addObject("PartDesign::Pocket", "Pocket001")
body.addObject(pocket2)
pocket2.Profile = sketch5
pocket2.Length = Q("55 in")

doc.recompute()
